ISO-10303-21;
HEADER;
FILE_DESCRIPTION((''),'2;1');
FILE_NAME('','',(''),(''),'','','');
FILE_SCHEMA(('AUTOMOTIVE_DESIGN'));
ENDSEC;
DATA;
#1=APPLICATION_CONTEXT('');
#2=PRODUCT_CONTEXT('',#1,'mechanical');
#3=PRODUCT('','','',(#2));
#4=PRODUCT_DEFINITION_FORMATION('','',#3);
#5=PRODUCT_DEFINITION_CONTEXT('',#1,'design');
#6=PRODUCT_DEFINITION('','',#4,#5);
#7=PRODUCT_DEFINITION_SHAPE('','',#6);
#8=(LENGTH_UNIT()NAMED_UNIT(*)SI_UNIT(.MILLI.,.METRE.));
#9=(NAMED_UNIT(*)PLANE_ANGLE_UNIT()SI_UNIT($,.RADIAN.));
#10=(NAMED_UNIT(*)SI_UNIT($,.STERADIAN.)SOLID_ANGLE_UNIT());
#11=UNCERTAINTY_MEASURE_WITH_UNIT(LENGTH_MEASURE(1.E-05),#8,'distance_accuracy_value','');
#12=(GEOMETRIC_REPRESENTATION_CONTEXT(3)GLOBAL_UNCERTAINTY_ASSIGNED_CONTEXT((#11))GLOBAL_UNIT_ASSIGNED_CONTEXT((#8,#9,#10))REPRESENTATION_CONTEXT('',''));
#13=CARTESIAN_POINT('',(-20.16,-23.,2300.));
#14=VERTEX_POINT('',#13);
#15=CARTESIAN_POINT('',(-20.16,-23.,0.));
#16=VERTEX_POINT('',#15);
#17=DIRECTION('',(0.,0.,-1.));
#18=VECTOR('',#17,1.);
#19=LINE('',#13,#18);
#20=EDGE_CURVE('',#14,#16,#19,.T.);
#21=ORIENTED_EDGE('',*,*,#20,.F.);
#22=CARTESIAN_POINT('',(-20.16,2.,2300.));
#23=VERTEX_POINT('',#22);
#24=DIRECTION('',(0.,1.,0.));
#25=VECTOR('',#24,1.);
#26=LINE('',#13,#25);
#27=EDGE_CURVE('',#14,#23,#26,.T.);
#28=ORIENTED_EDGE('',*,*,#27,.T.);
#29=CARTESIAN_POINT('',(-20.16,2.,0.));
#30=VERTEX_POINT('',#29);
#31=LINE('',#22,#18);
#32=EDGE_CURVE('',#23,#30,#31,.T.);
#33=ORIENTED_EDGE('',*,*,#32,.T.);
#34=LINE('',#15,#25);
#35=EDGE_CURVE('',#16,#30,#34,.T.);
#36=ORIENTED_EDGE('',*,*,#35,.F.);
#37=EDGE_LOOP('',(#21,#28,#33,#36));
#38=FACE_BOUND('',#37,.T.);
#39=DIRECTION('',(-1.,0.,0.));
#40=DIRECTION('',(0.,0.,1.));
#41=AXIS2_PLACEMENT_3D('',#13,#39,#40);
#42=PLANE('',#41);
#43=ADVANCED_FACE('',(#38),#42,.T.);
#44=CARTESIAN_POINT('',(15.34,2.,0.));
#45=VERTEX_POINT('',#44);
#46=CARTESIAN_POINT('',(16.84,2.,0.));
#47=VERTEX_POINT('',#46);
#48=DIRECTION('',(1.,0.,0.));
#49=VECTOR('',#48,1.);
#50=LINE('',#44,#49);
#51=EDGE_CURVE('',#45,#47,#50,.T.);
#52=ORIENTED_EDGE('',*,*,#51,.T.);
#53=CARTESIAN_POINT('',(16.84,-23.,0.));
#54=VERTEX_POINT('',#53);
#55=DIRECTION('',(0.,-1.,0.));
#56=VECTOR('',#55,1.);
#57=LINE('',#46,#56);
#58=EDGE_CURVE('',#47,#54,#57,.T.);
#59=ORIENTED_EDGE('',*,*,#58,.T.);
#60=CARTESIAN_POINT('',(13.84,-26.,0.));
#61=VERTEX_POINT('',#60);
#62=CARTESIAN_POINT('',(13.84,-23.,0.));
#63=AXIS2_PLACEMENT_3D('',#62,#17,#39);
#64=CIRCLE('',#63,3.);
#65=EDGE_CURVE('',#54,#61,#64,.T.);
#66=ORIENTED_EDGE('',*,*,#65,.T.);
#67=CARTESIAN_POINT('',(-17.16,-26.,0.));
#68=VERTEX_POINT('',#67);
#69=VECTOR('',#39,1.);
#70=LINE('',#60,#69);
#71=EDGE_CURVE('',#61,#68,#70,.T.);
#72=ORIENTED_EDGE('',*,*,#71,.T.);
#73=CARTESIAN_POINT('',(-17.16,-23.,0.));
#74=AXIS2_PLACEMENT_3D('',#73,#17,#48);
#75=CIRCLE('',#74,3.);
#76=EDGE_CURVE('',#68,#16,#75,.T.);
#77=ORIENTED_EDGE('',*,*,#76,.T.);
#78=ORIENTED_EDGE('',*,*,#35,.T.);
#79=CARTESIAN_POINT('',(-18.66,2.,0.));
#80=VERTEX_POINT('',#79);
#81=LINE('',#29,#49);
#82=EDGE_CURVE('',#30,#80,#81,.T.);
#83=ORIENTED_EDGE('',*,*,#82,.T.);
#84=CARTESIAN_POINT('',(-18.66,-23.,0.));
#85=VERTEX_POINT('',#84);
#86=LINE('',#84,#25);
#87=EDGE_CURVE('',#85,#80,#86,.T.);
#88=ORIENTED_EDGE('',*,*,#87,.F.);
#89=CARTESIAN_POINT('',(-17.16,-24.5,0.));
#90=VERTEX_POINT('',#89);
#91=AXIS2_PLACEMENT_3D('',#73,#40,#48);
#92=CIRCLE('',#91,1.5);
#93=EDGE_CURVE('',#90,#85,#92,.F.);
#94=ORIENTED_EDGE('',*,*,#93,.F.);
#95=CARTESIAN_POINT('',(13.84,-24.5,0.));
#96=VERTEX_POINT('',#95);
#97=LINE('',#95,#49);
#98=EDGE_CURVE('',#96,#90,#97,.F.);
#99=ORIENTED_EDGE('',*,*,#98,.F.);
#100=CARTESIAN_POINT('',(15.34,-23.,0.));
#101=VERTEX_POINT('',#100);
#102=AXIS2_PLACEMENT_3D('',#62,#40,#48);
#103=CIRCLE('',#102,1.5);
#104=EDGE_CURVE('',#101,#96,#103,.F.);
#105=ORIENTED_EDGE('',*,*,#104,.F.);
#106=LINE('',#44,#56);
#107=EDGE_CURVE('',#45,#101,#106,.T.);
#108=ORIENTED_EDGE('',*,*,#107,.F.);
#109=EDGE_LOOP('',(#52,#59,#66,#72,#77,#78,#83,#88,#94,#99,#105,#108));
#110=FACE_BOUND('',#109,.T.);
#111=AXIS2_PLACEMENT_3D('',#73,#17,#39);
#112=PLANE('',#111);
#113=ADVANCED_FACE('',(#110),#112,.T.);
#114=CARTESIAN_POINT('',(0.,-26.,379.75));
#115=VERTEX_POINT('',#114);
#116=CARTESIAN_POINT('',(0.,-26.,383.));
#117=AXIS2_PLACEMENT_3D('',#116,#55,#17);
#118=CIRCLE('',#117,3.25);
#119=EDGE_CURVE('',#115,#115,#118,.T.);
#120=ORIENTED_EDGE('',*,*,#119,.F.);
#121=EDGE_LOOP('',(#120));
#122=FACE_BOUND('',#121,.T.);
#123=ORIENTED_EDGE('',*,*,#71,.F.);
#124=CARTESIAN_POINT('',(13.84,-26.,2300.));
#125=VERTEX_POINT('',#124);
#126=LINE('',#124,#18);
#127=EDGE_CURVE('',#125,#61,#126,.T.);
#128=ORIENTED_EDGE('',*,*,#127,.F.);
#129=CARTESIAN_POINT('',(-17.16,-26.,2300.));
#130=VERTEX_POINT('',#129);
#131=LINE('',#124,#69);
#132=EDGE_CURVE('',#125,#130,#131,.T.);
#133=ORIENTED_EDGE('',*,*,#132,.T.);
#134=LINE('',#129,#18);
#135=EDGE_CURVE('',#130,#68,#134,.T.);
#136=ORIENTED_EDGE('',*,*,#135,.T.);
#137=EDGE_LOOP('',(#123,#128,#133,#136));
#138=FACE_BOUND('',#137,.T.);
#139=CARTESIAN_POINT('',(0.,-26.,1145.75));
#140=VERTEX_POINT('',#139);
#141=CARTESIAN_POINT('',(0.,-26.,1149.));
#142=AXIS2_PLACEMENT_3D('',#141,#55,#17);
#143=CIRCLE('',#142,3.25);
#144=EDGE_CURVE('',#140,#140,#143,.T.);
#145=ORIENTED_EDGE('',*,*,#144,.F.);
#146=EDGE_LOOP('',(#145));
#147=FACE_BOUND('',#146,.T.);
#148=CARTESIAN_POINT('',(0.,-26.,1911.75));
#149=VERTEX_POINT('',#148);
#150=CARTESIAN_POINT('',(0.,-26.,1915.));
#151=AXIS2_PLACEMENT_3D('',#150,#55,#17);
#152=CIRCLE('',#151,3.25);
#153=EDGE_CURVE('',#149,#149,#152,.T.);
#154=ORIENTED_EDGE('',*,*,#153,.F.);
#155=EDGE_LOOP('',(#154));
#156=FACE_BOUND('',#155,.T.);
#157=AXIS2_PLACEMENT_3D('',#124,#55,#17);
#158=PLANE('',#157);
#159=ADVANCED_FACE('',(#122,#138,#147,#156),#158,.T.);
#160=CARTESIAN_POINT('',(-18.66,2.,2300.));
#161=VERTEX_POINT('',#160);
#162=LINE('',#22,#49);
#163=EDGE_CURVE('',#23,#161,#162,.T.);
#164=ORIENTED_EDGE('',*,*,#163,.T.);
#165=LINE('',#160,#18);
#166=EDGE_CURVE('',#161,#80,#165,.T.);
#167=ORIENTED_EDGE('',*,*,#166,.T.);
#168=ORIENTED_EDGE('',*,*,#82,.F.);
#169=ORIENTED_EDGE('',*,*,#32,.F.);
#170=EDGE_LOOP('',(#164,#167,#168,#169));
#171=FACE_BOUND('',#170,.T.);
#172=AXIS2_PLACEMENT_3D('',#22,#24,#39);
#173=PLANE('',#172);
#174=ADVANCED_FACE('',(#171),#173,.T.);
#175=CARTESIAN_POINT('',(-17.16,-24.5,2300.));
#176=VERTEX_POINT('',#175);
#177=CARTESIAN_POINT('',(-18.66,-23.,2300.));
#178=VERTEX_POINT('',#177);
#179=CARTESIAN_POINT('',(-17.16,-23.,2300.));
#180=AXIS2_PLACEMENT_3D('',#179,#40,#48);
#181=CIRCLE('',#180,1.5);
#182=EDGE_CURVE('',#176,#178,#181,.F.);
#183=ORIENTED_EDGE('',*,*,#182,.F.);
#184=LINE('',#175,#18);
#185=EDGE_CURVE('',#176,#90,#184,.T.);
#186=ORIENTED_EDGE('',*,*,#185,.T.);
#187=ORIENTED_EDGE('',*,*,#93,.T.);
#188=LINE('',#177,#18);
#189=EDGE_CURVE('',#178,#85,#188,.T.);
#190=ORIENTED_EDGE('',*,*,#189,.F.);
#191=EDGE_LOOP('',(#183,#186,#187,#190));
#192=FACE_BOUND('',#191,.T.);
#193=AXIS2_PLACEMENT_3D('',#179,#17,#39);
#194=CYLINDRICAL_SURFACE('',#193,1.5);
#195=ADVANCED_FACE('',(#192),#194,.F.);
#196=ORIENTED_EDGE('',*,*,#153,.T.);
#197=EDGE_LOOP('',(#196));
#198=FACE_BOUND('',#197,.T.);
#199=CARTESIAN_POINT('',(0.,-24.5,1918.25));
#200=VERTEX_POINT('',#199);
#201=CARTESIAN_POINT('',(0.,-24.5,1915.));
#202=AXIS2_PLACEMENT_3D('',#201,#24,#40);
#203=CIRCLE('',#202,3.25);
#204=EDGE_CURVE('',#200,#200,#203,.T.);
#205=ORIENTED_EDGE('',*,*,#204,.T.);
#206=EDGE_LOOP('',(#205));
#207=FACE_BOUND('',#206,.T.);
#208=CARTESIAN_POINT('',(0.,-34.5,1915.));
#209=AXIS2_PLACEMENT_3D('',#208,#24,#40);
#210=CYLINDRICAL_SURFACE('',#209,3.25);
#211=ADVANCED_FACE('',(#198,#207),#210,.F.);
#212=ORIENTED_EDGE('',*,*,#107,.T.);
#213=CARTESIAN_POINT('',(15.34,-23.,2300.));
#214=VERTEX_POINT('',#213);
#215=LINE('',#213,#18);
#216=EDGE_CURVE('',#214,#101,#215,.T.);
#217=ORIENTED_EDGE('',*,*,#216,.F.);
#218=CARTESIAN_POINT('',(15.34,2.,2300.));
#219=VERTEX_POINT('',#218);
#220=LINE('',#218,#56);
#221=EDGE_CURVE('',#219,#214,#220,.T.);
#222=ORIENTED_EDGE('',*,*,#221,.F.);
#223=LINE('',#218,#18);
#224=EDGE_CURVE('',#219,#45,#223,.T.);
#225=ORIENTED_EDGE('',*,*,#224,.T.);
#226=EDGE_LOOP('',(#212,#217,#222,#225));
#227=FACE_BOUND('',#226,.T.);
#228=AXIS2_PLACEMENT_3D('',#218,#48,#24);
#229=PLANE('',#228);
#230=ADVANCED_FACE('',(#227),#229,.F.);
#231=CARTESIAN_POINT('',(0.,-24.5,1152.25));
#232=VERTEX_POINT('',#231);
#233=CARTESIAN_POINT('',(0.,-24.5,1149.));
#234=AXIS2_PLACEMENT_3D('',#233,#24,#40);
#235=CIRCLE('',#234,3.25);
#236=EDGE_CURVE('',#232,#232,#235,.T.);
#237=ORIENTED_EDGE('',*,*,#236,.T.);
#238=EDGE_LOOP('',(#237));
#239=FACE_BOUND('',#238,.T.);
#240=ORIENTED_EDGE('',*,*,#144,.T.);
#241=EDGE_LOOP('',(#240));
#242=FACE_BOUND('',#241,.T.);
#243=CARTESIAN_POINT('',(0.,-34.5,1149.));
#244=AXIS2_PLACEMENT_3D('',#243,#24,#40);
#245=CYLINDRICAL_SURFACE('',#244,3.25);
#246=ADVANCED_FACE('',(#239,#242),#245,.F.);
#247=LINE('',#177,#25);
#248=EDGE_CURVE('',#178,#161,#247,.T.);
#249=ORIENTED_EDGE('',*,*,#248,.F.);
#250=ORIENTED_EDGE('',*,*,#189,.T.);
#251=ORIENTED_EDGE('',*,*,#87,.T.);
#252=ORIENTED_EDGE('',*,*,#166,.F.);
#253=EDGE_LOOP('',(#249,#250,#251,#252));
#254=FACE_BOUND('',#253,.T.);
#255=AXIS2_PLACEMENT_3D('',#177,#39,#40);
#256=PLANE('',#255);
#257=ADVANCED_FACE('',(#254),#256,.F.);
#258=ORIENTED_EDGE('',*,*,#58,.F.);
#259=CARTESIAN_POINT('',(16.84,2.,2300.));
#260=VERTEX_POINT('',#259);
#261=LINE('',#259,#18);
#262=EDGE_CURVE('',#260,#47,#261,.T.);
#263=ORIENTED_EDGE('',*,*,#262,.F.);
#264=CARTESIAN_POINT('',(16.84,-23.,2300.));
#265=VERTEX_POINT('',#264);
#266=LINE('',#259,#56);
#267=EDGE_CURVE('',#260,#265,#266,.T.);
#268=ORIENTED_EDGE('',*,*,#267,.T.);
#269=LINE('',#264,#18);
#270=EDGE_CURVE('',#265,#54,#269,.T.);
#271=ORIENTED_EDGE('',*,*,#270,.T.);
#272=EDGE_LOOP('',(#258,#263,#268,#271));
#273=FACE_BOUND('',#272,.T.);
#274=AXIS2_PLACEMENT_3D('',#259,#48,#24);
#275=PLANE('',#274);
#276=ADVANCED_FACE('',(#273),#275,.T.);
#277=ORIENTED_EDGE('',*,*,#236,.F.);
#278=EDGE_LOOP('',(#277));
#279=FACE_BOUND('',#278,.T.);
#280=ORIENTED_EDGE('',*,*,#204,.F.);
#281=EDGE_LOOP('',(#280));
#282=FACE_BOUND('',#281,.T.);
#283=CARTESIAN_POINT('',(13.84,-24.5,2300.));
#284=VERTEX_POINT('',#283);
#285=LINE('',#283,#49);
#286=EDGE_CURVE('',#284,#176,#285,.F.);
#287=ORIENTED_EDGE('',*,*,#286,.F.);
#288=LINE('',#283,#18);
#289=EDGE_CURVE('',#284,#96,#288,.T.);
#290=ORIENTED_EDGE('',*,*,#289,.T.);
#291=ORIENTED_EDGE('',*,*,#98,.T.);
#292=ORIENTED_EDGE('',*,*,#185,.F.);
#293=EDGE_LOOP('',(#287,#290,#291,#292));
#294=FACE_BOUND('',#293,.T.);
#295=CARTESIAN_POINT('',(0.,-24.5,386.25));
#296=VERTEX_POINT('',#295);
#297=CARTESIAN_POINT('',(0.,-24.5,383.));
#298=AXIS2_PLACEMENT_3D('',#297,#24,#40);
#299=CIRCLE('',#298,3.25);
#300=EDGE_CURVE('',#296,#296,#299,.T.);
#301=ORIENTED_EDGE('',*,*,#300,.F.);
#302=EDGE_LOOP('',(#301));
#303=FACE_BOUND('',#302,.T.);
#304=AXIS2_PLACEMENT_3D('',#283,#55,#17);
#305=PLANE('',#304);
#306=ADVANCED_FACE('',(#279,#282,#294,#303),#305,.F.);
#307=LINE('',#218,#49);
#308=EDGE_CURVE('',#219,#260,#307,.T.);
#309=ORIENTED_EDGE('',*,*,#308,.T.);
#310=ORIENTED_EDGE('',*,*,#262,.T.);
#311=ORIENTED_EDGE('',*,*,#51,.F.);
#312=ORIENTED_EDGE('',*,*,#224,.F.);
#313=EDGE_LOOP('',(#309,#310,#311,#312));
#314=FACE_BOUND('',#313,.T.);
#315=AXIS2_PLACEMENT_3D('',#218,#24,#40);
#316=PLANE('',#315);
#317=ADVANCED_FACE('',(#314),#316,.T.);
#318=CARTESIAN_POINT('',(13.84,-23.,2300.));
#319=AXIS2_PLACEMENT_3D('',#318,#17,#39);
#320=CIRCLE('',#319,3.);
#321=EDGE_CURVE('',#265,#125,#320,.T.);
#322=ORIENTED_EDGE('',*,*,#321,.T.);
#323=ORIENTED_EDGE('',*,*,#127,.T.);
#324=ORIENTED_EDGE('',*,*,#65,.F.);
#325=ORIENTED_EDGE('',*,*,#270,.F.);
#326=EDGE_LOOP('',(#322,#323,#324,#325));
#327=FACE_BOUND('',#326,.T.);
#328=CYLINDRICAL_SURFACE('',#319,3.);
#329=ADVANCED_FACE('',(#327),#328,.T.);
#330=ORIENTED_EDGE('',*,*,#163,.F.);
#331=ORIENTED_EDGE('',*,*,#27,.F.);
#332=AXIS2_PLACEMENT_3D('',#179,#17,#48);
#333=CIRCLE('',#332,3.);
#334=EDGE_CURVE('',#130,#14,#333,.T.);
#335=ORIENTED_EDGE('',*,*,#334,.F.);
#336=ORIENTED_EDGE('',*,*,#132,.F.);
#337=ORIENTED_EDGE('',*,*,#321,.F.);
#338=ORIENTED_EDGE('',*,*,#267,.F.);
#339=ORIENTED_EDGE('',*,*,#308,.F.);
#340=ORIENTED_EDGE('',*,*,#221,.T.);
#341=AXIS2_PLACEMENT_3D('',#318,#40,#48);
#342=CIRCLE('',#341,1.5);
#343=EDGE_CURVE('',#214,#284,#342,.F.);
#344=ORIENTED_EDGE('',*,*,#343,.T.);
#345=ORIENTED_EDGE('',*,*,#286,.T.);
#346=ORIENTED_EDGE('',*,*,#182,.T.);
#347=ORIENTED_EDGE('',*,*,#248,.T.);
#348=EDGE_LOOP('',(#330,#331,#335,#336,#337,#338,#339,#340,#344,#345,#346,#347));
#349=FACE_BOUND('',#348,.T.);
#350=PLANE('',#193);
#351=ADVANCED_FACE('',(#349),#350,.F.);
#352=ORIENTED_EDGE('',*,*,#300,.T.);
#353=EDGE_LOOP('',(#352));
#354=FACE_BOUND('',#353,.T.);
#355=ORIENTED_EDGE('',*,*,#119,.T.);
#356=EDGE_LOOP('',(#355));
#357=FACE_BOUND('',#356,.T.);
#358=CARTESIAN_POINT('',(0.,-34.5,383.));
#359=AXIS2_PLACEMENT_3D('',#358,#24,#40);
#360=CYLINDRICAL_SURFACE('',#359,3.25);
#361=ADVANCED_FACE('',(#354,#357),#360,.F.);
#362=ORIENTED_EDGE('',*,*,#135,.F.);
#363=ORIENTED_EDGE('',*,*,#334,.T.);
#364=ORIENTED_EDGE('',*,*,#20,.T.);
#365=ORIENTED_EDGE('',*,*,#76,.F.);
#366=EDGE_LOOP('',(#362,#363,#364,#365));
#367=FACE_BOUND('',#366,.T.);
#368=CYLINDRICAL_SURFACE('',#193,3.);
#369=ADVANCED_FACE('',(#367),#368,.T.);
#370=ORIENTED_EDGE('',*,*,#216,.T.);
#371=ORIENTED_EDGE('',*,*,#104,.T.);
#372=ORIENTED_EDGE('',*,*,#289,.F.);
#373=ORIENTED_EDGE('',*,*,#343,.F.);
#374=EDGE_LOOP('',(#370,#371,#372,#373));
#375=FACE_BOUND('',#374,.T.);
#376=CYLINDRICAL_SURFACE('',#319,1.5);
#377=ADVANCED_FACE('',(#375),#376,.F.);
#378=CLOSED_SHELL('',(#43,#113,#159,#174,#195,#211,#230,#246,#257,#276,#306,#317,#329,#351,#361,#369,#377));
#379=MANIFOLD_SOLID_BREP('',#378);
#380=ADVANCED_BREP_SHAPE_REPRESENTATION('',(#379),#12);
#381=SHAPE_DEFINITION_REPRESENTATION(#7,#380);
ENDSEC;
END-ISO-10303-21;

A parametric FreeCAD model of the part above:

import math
import FreeCAD as App
import Part
import Sketcher
from FreeCAD import Vector

doc = App.newDocument("Part")
body = doc.addObject("PartDesign::Body", "Body")

# Sketch on XY plane
sketch1 = body.newObject("Sketcher::SketchObject", "Sketch")
sketch1.AttachmentSupport = (doc.getObject("XY_Plane"), [""])
sketch1.MapMode = "FlatFace"
sketch1.addGeometry([
    Part.LineSegment(Vector(16.84, -23, 0), Vector(16.84, 2, 0)),  # 0
    Part.LineSegment(Vector(16.84, 2, 0), Vector(15.34, 2, 0)),  # 1
    Part.LineSegment(Vector(15.34, 2, 0), Vector(15.34, -23, 0)),  # 2
    Part.ArcOfCircle(Part.Circle(Vector(13.84, -23, 0), Vector(0, 0, 1), 1.5), math.radians(-90), math.radians(0)),  # 3
    Part.LineSegment(Vector(13.84, -24.5, 0), Vector(-17.16, -24.5, 0)),  # 4
    Part.ArcOfCircle(Part.Circle(Vector(-17.16, -23, 0), Vector(0, 0, 1), 1.5), math.radians(180), math.radians(270)),  # 5
    Part.LineSegment(Vector(-18.66, -23, 0), Vector(-18.66, 2, 0)),  # 6
    Part.LineSegment(Vector(-18.66, 2, 0), Vector(-20.16, 2, 0)),  # 7
    Part.LineSegment(Vector(-20.16, 2, 0), Vector(-20.16, -23, 0)),  # 8
    Part.ArcOfCircle(Part.Circle(Vector(-17.16, -23, 0), Vector(0, 0, 1), 3), math.radians(180), math.radians(270)),  # 9
    Part.LineSegment(Vector(-17.16, -26, 0), Vector(13.84, -26, 0)),  # 10
    Part.ArcOfCircle(Part.Circle(Vector(13.84, -23, 0), Vector(0, 0, 1), 3), math.radians(-90), math.radians(0)),  # 11
], False)
sketch1.addConstraint([
    Sketcher.Constraint("Coincident", 0, 2, 1, 1),
    Sketcher.Constraint("Coincident", 1, 2, 2, 1),
    Sketcher.Constraint("Tangent", 2, 2, 3, 2),
    Sketcher.Constraint("Tangent", 3, 1, 4, 1),
    Sketcher.Constraint("Tangent", 4, 2, 5, 2),
    Sketcher.Constraint("Tangent", 5, 1, 6, 1),
    Sketcher.Constraint("Coincident", 6, 2, 7, 1),
    Sketcher.Constraint("Coincident", 7, 2, 8, 1),
    Sketcher.Constraint("Tangent", 8, 2, 9, 1),
    Sketcher.Constraint("Tangent", 9, 2, 10, 1),
    Sketcher.Constraint("Tangent", 10, 2, 11, 1),
    Sketcher.Constraint("Tangent", 11, 2, 0, 1),
    Sketcher.Constraint("Vertical", 0),
    Sketcher.Constraint("Horizontal", 1),
    Sketcher.Constraint("Vertical", 2),
    Sketcher.Constraint("Horizontal", 4),
    Sketcher.Constraint("Vertical", 6),
    Sketcher.Constraint("Horizontal", 7),
    Sketcher.Constraint("Vertical", 8),
    Sketcher.Constraint("Horizontal", 10),
    Sketcher.Constraint("Coincident", 9, 3, 5, 3),
    Sketcher.Constraint("Coincident", 11, 3, 3, 3),
    Sketcher.Constraint("Equal", 3, 5),
    Sketcher.Constraint("Horizontal", 1, 2, 6, 2),
    Sketcher.Constraint("Radius", 9, 3.0),
    Sketcher.Constraint("Radius", 3, 1.5),
    Sketcher.Constraint("DistanceX", 4, 2, 4, 1, 31.0),
    Sketcher.Constraint("DistanceY", 0, 1, 0, 2, 25.0),
    Sketcher.Constraint("DistanceY", 3, 3, -1, 1, 23.0),
    Sketcher.Constraint("DistanceX", -1, 1, 3, 3, 13.84),
])
pad1 = body.newObject("PartDesign::Pad", "Pad")
pad1.Profile = sketch1
pad1.Length = 2300

# Sketch on XZ plane
sketch2 = body.newObject("Sketcher::SketchObject", "Sketch001")
sketch2.AttachmentSupport = (doc.getObject("XZ_Plane"), [""])
sketch2.MapMode = "FlatFace"
sketch2.AttachmentOffset = App.Placement(Vector(0, 0, 24.5), App.Rotation())
sketch2.addGeometry(Part.Circle(Vector(0, 383, 0), Vector(0, 0, 1), 3.25), False)
sketch2.addConstraint([
    Sketcher.Constraint("PointOnObject", 0, 3, -2),
    Sketcher.Constraint("Diameter", 0, 6.5),
    Sketcher.Constraint("DistanceY", -1, 1, 0, 3, 383.0),
])
pocket1 = body.newObject("PartDesign::Pocket", "Pocket")
pocket1.Profile = sketch2
pocket1.Length = 10
pocket1.Reversed = True
doc.recompute()

linearpattern = body.newObject("PartDesign::LinearPattern", "LinearPattern")
linearpattern.Originals = [pocket1]
linearpattern.Direction = (doc.getObject("Z_Axis"), [""])
linearpattern.Mode = "offset"
linearpattern.Offset = 766
linearpattern.Occurrences = 3
body.Tip = linearpattern

doc.recompute()
